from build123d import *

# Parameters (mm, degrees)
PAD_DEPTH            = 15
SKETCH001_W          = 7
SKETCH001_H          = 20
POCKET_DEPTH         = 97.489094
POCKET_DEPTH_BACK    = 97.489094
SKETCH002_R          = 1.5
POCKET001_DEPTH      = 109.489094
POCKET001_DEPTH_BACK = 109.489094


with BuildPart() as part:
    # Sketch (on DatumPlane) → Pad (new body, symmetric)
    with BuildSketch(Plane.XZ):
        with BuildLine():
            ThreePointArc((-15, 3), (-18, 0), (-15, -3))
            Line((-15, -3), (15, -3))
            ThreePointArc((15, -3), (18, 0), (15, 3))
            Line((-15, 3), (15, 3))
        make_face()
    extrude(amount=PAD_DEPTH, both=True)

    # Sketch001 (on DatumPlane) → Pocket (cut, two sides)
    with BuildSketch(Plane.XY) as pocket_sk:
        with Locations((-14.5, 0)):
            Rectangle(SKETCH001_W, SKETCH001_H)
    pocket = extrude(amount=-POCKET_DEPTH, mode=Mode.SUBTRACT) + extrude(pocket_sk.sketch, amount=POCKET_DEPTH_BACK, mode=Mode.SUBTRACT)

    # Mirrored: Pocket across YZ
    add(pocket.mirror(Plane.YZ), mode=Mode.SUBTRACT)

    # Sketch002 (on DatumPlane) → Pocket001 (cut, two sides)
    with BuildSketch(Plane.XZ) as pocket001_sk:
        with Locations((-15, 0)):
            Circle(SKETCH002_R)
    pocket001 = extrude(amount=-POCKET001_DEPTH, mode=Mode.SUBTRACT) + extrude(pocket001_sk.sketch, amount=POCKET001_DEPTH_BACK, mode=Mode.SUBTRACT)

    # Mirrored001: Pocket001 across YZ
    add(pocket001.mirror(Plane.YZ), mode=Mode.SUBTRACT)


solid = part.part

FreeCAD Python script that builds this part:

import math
import FreeCAD as App
import Part
import Sketcher
from FreeCAD import Vector

doc = App.newDocument("Part")
params = doc.addObject("Spreadsheet::Sheet", "Params")
for row, (alias, value) in enumerate([
    ("sketch1_radius", "3 mm"),
    ("sketch1_width", "30 mm"),
    ("pad1_length", "30 mm"),
    ("sketch2_width", "7 mm"),
    ("sketch2_height", "20 mm"),
    ("sketch3_diameter", "3 mm"),
], start=1):
    params.set(f"A{row}", alias)
    params.set(f"B{row}", "=" + value)
    params.setAlias(f"B{row}", alias)

body = doc.addObject("PartDesign::Body", "Body")

# Sketch on XZ plane
sketch1 = body.newObject("Sketcher::SketchObject", "Sketch")
sketch1.AttachmentSupport = (doc.getObject("XZ_Plane"), [""])
sketch1.MapMode = "FlatFace"
sketch1.addGeometry([
    Part.ArcOfCircle(Part.Circle(Vector(-15, 0, 0), Vector(0, 0, 1), 3), math.radians(90), math.radians(270)),
    Part.LineSegment(Vector(-15, -3, 0), Vector(15, -3, 0)),
    Part.ArcOfCircle(Part.Circle(Vector(15, 0, 0), Vector(0, 0, 1), 3), math.radians(-90), math.radians(90)),
    Part.LineSegment(Vector(15, 3, 0), Vector(-15, 3, 0)),
], False)
sketch1.addConstraint([
    Sketcher.Constraint("Tangent", 0, 2, 1, 1),
    Sketcher.Constraint("Tangent", 1, 2, 2, 1),
    Sketcher.Constraint("Tangent", 2, 2, 3, 1),
    Sketcher.Constraint("Tangent", 3, 2, 0, 1),
    Sketcher.Constraint("Horizontal", 1),
    Sketcher.Constraint("Horizontal", 3),
    Sketcher.Constraint("Symmetric", 0, 3, 2, 3, -1, 1),
    Sketcher.Constraint("Radius", 0, 3.0),
    Sketcher.Constraint("DistanceX", 1, 1, 1, 2, 30.0),
])
sketch1.setExpression("Constraints[7]", "Params.sketch1_radius")
sketch1.setExpression("Constraints[8]", "Params.sketch1_width")
pad1 = body.newObject("PartDesign::Pad", "Pad")
pad1.Profile = sketch1
pad1.setExpression("Length", "Params.pad1_length")
pad1.Midplane = True

# Sketch on XY plane
sketch2 = body.newObject("Sketcher::SketchObject", "Sketch001")
sketch2.AttachmentSupport = (doc.getObject("XY_Plane"), [""])
sketch2.MapMode = "FlatFace"
sketch2.addGeometry([
    Part.LineSegment(Vector(-18, 10, 0), Vector(-18, -10, 0)),
    Part.LineSegment(Vector(-18, -10, 0), Vector(-11, -10, 0)),
    Part.LineSegment(Vector(-11, -10, 0), Vector(-11, 10, 0)),
    Part.LineSegment(Vector(-11, 10, 0), Vector(-18, 10, 0)),
], False)
sketch2.addConstraint([
    Sketcher.Constraint("Coincident", 0, 2, 1, 1),
    Sketcher.Constraint("Coincident", 1, 2, 2, 1),
    Sketcher.Constraint("Coincident", 2, 2, 3, 1),
    Sketcher.Constraint("Coincident", 3, 2, 0, 1),
    Sketcher.Constraint("Vertical", 0),
    Sketcher.Constraint("Horizontal", 1),
    Sketcher.Constraint("Vertical", 2),
    Sketcher.Constraint("Horizontal", 3),
    Sketcher.Constraint("DistanceX", 1, 1, 1, 2, 7.0),
    Sketcher.Constraint("DistanceY", 0, 2, 0, 1, 20.0),
    Sketcher.Constraint("DistanceX", 0, 2, -1, 1, 18.0),
    Sketcher.Constraint("DistanceY", 0, 2, -1, 1, 10.0),
])
sketch2.setExpression("Constraints[8]", "Params.sketch2_width")
sketch2.setExpression("Constraints[9]", "Params.sketch2_height")
pocket1 = body.newObject("PartDesign::Pocket", "Pocket")
pocket1.Profile = sketch2
pocket1.Type = "ThroughAll"
pocket1.Midplane = True
doc.recompute()

mirrored = body.newObject("PartDesign::Mirrored", "Mirrored")
mirrored.Originals = [pocket1]
mirrored.MirrorPlane = (doc.getObject("YZ_Plane"), [""])
body.Tip = mirrored

# Sketch on XZ plane
sketch3 = body.newObject("Sketcher::SketchObject", "Sketch002")
sketch3.AttachmentSupport = (doc.getObject("XZ_Plane"), [""])
sketch3.MapMode = "FlatFace"
sketch3.addGeometry(Part.Circle(Vector(-15, 0, 0), Vector(0, 0, 1), 1.5), False)
sketch3.addConstraint([
    Sketcher.Constraint("PointOnObject", 0, 3, -1),
    Sketcher.Constraint("Diameter", 0, 3.0),
    Sketcher.Constraint("DistanceX", 0, 3, -1, 1, 15.0),
])
sketch3.setExpression("Constraints[1]", "Params.sketch3_diameter")
pocket2 = body.newObject("PartDesign::Pocket", "Pocket001")
pocket2.Profile = sketch3
pocket2.Type = "ThroughAll"
pocket2.Midplane = True
doc.recompute()

mirrored2 = body.newObject("PartDesign::Mirrored", "Mirrored001")
mirrored2.Originals = [pocket2]
mirrored2.MirrorPlane = (doc.getObject("YZ_Plane"), [""])
body.Tip = mirrored2

doc.recompute()
